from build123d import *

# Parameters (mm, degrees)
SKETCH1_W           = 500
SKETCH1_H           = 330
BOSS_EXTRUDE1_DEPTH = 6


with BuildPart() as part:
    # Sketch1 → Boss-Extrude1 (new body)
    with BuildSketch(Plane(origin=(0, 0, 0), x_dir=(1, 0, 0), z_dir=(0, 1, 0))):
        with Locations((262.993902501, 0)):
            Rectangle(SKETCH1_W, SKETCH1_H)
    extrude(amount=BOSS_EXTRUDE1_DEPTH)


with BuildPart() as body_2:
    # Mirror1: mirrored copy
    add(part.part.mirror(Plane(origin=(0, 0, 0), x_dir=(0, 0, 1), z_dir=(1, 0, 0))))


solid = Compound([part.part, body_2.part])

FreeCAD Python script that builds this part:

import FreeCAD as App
import Part
import Sketcher

doc = App.newDocument("Part")
body = doc.addObject("PartDesign::Body", "Body")

# Sketch on XZ plane
sketch1 = body.newObject("Sketcher::SketchObject", "Sketch")
sketch1.AttachmentSupport = (doc.getObject("XZ_Plane"), [""])
sketch1.MapMode = "FlatFace"
sketch1.addGeometry([
    Part.LineSegment(App.Vector(12.993903, -165, 0), App.Vector(12.993903, 165, 0)),
    Part.LineSegment(App.Vector(12.993903, 165, 0), App.Vector(512.993903, 165, 0)),
    Part.LineSegment(App.Vector(512.993903, 165, 0), App.Vector(512.993903, -165, 0)),
    Part.LineSegment(App.Vector(512.993903, -165, 0), App.Vector(12.993903, -165, 0)),
], False)
sketch1.addConstraint([
    Sketcher.Constraint("Coincident", 0, 2, 1, 1),
    Sketcher.Constraint("Coincident", 1, 2, 2, 1),
    Sketcher.Constraint("Coincident", 2, 2, 3, 1),
    Sketcher.Constraint("Coincident", 3, 2, 0, 1),
    Sketcher.Constraint("Vertical", 0),
    Sketcher.Constraint("Horizontal", 1),
    Sketcher.Constraint("Vertical", 2),
    Sketcher.Constraint("Horizontal", 3),
    Sketcher.Constraint("DistanceX", 1, 1, 1, 2, 500.0),
    Sketcher.Constraint("DistanceY", 0, 1, 0, 2, 330.0),
    Sketcher.Constraint("DistanceY", -1, 1, 0, 2, 165.0),
    Sketcher.Constraint("DistanceX", -1, 1, 0, 2, 12.993903),
])
pad1 = body.newObject("PartDesign::Pad", "Pad")
pad1.Profile = sketch1
pad1.Length = 6
pad1.Reversed = True
body2 = doc.addObject("PartDesign::Body", "Body001")
doc.recompute()

mirroring = doc.addObject("Part::Mirroring", "Mirroring")
mirroring.Source = body
mirroring.Base = App.Vector(0, 0, 0)
mirroring.Normal = App.Vector(1, 0, 0)
body2.BaseFeature = mirroring
doc.recompute()
mirroring.Visibility = False

doc.recompute()
